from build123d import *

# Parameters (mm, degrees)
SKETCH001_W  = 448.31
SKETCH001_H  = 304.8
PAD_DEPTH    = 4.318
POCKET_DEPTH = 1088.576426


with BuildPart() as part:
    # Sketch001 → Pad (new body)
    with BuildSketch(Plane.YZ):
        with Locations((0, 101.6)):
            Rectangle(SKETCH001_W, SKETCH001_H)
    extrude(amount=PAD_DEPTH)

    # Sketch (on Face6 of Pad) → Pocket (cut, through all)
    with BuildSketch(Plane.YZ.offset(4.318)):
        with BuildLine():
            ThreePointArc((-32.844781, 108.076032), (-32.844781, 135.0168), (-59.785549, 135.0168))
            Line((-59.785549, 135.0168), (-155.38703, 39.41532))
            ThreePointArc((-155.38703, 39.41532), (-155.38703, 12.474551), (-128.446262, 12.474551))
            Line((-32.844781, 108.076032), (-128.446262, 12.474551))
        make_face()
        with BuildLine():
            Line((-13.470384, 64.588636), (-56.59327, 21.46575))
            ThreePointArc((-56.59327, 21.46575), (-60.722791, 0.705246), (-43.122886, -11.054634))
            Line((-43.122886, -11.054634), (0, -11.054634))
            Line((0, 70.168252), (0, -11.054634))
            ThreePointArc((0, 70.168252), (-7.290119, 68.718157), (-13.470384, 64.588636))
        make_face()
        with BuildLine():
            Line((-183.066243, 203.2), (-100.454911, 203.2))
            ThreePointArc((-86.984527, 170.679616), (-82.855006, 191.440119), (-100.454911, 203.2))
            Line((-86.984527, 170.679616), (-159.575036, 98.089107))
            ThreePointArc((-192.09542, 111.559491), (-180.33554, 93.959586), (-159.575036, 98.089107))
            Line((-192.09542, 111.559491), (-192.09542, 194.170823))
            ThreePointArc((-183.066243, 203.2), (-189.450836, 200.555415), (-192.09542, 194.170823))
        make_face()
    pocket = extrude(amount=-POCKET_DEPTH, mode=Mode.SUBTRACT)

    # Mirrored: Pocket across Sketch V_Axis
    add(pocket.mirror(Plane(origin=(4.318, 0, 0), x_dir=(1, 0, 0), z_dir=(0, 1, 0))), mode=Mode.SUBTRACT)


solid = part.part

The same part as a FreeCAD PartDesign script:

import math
import FreeCAD as App
import Part
import Sketcher
from FreeCAD import Vector
Q = App.Units.Quantity

doc = App.newDocument("Part")
body = doc.addObject("PartDesign::Body", "Body")

sketch1 = body.newObject("Sketcher::SketchObject", "Sketch")
sketch1.AttachmentSupport = (doc.getObject("YZ_Plane"), [""])
sketch1.MapMode = "FlatFace"
sketch1.addGeometry([
    Part.LineSegment(Vector(-224, 254, 0), Vector(-224, -51, 0)),
    Part.LineSegment(Vector(-224, -51, 0), Vector(224, -51, 0)),
    Part.LineSegment(Vector(224, -51, 0), Vector(224, 254, 0)),
    Part.LineSegment(Vector(224, 254, 0), Vector(-224, 254, 0)),
], False)
sketch1.addConstraint([
    Sketcher.Constraint("Coincident", 0, 2, 1, 1),
    Sketcher.Constraint("Coincident", 1, 2, 2, 1),
    Sketcher.Constraint("Coincident", 2, 2, 3, 1),
    Sketcher.Constraint("Coincident", 3, 2, 0, 1),
    Sketcher.Constraint("Vertical", 0),
    Sketcher.Constraint("Horizontal", 1),
    Sketcher.Constraint("Vertical", 2),
    Sketcher.Constraint("Horizontal", 3),
    Sketcher.Constraint("DistanceY", 0, 2, 0, 1, Q("12 in")),
    Sketcher.Constraint("DistanceY", 0, 2, -1, 1, Q("2 in")),
    Sketcher.Constraint("DistanceX", 1, 1, 1, 2, Q("17.65 in")),
    Sketcher.Constraint("DistanceX", 0, 2, -1, 1, Q("8.825 in")),
])
pad1 = body.newObject("PartDesign::Pad", "Pad")
pad1.Profile = sketch1
pad1.Length = Q("0.17 in")

sketch2 = body.newObject("Sketcher::SketchObject", "Sketch001")
sketch2.AttachmentSupport = (doc.getObject("YZ_Plane"), [""])
sketch2.MapMode = "FlatFace"
sketch2.AttachmentOffset = App.Placement(Vector(0, 0, 0.17 * 25.4), App.Rotation())
sketch2.addGeometry([
    Part.ArcOfCircle(Part.Circle(Vector(-46, 122, 0), Vector(0, 0, 1), 19), math.radians(-45), math.radians(135)),
    Part.LineSegment(Vector(-60, 135, 0), Vector(-155, 39, 0)),
    Part.ArcOfCircle(Part.Circle(Vector(-142, 26, 0), Vector(0, 0, 1), 19), math.radians(135), math.radians(315)),
    Part.LineSegment(Vector(-128, 12, 0), Vector(-33, 108, 0)),
    Part.LineSegment(Vector(-13, 65, 0), Vector(-57, 21, 0)),
    Part.ArcOfCircle(Part.Circle(Vector(-43, 8, 0), Vector(0, 0, 1), 19), math.radians(135), math.radians(270)),
    Part.LineSegment(Vector(-43, -11, 0), Vector(0, -11, 0)),
    Part.LineSegment(Vector(0, -11, 0), Vector(0, 70, 0)),
    Part.ArcOfCircle(Part.Circle(Vector(0, 51, 0), Vector(0, 0, 1), 19), math.radians(90), math.radians(135)),
    Part.LineSegment(Vector(-100, 203, 0), Vector(-183, 203, 0)),
    Part.ArcOfCircle(Part.Circle(Vector(-183, 194, 0), Vector(0, 0, 1), 9), math.radians(90), math.radians(180)),
    Part.LineSegment(Vector(-192, 194, 0), Vector(-192, 112, 0)),
    Part.ArcOfCircle(Part.Circle(Vector(-173, 112, 0), Vector(0, 0, 1), 19), math.radians(180), math.radians(315)),
    Part.LineSegment(Vector(-160, 98, 0), Vector(-87, 171, 0)),
    Part.ArcOfCircle(Part.Circle(Vector(-100, 184, 0), Vector(0, 0, 1), 19), math.radians(-45), math.radians(90)),
], False)
sketch2.addConstraint([
    Sketcher.Constraint("Tangent", 0, 2, 1, 1),
    Sketcher.Constraint("Tangent", 1, 2, 2, 1),
    Sketcher.Constraint("Tangent", 2, 2, 3, 1),
    Sketcher.Constraint("Tangent", 3, 2, 0, 1),
    Sketcher.Constraint("Tangent", 4, 2, 5, 1),
    Sketcher.Constraint("Tangent", 5, 2, 6, 1),
    Sketcher.Constraint("Coincident", 6, 2, 7, 1),
    Sketcher.Constraint("Coincident", 7, 2, 8, 1),
    Sketcher.Constraint("Tangent", 8, 2, 4, 1),
    Sketcher.Constraint("Tangent", 9, 2, 10, 1),
    Sketcher.Constraint("Tangent", 10, 2, 11, 1),
    Sketcher.Constraint("Tangent", 11, 2, 12, 1),
    Sketcher.Constraint("Tangent", 12, 2, 13, 1),
    Sketcher.Constraint("Tangent", 13, 2, 14, 1),
    Sketcher.Constraint("Tangent", 14, 2, 9, 1),
    Sketcher.Constraint("Horizontal", 6),
    Sketcher.Constraint("Vertical", 7),
    Sketcher.Constraint("Horizontal", 9),
    Sketcher.Constraint("Vertical", 11),
    Sketcher.Constraint("Equal", 0, 2),
    Sketcher.Constraint("Equal", 2, 5),
    Sketcher.Constraint("Equal", 5, 8),
    Sketcher.Constraint("Equal", 8, 12),
    Sketcher.Constraint("Equal", 12, 14),
    Sketcher.Constraint("PointOnObject", 8, 3, -2),
    Sketcher.Constraint("PointOnObject", 6, 2, -2),
    Sketcher.Constraint("Parallel", 3, 4),
    Sketcher.Constraint("Parallel", 4, 13),
    Sketcher.Constraint("Equal", 9, 11),
    Sketcher.Constraint("Radius", 0, Q("0.75 in")),
    Sketcher.Constraint("DistanceY", -1, 1, 9, 2, Q("8 in")),
    Sketcher.Constraint("Radius", 10, 9.029176),
    Sketcher.Constraint("DistanceX", 9, 2, 9, 1, 82.611332),
    Sketcher.Constraint("DistanceY", -1, 1, 0, 2, 135.0168),
    Sketcher.Constraint("DistanceY", 2, 2, 8, 3, 38.6437),
    Sketcher.Constraint("DistanceY", 4, 2, 8, 3, 29.652501),
    Sketcher.Constraint("Distance", 1, 135.20091),
    Sketcher.Constraint("DistanceX", 12, 3, -1, 1, 173.04542),
    Sketcher.Constraint("DistanceX", 0, 2, -1, 1, 59.785549),
])
pocket1 = body.newObject("PartDesign::Pocket", "Pocket")
pocket1.Profile = sketch2
pocket1.Type = "ThroughAll"
doc.recompute()

mirrored = body.newObject("PartDesign::Mirrored", "Mirrored")
mirrored.Originals = [pocket1]
mirrored.MirrorPlane = (doc.getObject("XZ_Plane"), [""])
body.Tip = mirrored

doc.recompute()
